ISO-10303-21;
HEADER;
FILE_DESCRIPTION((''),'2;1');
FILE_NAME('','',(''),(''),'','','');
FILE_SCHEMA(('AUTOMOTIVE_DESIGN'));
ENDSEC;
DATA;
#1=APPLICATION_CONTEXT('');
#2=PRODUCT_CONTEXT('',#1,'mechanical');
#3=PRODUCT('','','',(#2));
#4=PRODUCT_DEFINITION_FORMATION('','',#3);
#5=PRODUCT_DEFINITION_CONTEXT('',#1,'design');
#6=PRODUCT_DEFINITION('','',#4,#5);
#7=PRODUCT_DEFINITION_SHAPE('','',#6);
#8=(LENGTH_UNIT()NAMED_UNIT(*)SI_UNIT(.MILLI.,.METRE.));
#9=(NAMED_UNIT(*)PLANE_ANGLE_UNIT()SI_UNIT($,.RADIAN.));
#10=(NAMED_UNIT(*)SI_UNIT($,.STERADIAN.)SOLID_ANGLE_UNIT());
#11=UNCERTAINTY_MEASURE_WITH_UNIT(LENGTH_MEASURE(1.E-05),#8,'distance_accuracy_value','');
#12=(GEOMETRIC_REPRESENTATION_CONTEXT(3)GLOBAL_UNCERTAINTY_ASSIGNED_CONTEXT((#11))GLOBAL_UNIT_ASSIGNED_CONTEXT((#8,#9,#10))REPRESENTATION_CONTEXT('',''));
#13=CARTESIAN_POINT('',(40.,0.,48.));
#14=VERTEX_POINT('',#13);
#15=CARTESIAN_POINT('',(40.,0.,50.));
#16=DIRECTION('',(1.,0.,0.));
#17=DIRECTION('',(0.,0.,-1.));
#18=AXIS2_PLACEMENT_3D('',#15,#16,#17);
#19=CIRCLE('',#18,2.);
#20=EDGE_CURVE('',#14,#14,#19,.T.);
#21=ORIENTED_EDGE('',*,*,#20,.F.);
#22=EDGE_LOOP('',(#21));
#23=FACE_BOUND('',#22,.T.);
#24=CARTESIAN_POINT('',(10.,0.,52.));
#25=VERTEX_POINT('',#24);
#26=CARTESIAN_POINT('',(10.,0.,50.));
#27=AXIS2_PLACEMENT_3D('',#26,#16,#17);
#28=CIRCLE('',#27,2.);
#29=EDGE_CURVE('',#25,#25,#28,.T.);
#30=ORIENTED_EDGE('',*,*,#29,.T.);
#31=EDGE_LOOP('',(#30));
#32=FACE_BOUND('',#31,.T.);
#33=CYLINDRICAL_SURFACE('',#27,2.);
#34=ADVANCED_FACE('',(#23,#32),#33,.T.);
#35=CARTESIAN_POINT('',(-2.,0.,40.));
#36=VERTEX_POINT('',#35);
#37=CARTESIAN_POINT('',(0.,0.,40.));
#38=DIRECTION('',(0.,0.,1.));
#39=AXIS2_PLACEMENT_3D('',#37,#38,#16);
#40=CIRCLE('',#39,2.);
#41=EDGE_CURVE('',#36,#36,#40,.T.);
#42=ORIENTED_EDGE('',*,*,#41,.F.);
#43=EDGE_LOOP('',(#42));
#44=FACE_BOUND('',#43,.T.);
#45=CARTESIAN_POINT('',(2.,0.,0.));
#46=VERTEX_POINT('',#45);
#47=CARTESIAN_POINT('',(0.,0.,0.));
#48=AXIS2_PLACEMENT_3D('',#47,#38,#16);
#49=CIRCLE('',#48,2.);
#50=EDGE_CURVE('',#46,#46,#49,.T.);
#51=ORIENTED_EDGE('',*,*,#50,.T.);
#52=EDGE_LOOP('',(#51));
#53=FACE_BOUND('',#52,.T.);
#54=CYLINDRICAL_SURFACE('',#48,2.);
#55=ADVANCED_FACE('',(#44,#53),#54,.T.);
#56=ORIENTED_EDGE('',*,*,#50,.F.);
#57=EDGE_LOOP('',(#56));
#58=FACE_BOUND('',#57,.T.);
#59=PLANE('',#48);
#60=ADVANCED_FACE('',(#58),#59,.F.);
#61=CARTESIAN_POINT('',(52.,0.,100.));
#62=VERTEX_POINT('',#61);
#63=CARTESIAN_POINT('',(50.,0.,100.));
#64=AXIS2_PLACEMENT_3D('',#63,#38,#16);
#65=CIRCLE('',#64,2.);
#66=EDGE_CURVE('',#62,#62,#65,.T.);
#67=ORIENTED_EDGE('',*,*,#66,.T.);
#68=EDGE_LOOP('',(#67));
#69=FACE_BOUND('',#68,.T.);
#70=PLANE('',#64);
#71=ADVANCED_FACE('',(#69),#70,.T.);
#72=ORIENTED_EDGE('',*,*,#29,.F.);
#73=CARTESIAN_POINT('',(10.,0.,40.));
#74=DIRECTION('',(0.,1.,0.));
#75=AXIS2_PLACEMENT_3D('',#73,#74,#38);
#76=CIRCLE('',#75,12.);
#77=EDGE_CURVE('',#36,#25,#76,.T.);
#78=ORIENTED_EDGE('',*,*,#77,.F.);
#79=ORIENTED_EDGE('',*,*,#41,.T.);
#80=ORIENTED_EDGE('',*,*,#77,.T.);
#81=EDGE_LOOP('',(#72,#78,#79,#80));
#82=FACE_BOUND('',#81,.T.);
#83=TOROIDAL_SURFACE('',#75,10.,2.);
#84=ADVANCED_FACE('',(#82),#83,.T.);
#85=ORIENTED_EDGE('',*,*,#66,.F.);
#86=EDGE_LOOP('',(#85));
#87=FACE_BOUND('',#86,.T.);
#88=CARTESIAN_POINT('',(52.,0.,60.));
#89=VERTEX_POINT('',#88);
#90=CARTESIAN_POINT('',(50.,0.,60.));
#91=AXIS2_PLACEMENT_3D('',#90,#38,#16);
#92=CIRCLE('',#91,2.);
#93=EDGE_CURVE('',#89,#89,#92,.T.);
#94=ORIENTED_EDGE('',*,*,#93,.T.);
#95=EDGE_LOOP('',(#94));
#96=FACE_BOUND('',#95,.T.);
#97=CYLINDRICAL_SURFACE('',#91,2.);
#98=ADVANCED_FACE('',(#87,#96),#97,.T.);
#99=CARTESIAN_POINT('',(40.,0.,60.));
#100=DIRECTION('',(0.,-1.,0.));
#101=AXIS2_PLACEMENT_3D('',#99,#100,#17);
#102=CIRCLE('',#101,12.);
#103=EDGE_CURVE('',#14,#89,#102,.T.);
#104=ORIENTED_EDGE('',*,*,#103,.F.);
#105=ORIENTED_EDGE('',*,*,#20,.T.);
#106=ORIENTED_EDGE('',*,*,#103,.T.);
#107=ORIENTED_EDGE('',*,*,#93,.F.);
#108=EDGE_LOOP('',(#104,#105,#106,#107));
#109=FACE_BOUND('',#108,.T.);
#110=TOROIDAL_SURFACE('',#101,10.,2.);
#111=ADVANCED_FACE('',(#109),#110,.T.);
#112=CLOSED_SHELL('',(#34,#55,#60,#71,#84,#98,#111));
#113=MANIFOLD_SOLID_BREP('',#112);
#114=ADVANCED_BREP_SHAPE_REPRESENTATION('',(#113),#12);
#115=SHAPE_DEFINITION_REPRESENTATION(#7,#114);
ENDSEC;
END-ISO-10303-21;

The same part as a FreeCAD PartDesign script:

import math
import FreeCAD as App
import Part
import Sketcher

V = App.Vector
Q = App.Units.Quantity

doc = App.newDocument("Part")
body = doc.addObject("PartDesign::Body", "Body")

# Sketch on XY plane
sketch1 = body.newObject("Sketcher::SketchObject", "Sketch")
sketch1.AttachmentSupport = (doc.getObject("XY_Plane"), [""])
sketch1.MapMode = "FlatFace"
sketch1.addGeometry(Part.Circle(V(0, 0, 0), V(0, 0, 1), 2), False)
sketch1.addConstraint([
    Sketcher.Constraint("Coincident", 0, 3, -1, 1),
    Sketcher.Constraint("Diameter", 0, Q("4 mm")),
])

# Sketch on XZ plane
sketch2 = body.newObject("Sketcher::SketchObject", "Sketch001")
sketch2.AttachmentSupport = (doc.getObject("XZ_Plane"), [""])
sketch2.MapMode = "FlatFace"
sketch2.addGeometry([
    Part.LineSegment(V(0, 0, 0), V(0, 40, 0)),  # 0
    Part.ArcOfCircle(Part.Circle(V(10, 40, 0), V(0, 0, 1), 10), math.radians(90), math.radians(180)),  # 1
    Part.LineSegment(V(10, 50, 0), V(40, 50, 0)),  # 2
    Part.ArcOfCircle(Part.Circle(V(40, 60, 0), V(0, 0, 1), 10), math.radians(-90), math.radians(0)),  # 3
    Part.LineSegment(V(50, 60, 0), V(50, 100, 0)),  # 4
], False)
sketch2.addConstraint([
    Sketcher.Constraint("Tangent", 0, 2, 1, 2),
    Sketcher.Constraint("Tangent", 1, 1, 2, 1),
    Sketcher.Constraint("Tangent", 2, 2, 3, 1),
    Sketcher.Constraint("Tangent", 3, 2, 4, 1),
    Sketcher.Constraint("Vertical", 0),
    Sketcher.Constraint("Horizontal", 2),
    Sketcher.Constraint("Vertical", 4),
    Sketcher.Constraint("Coincident", 0, 1, -1, 1),
    Sketcher.Constraint("Equal", 1, 3),
    Sketcher.Constraint("Equal", 0, 4),
    Sketcher.Constraint("Radius", 1, Q("10 mm")),
    Sketcher.Constraint("DistanceX", 2, 1, 2, 2, Q("30 mm")),
    Sketcher.Constraint("DistanceY", 0, 1, 0, 2, Q("40 mm")),
])
doc.recompute()

additivepipe = body.newObject("PartDesign::AdditivePipe", "AdditivePipe")
additivepipe.Profile = sketch1
additivepipe.Spine = (sketch2, ["Edge1", "Edge2", "Edge3", "Edge4", "Edge5"])

doc.recompute()
